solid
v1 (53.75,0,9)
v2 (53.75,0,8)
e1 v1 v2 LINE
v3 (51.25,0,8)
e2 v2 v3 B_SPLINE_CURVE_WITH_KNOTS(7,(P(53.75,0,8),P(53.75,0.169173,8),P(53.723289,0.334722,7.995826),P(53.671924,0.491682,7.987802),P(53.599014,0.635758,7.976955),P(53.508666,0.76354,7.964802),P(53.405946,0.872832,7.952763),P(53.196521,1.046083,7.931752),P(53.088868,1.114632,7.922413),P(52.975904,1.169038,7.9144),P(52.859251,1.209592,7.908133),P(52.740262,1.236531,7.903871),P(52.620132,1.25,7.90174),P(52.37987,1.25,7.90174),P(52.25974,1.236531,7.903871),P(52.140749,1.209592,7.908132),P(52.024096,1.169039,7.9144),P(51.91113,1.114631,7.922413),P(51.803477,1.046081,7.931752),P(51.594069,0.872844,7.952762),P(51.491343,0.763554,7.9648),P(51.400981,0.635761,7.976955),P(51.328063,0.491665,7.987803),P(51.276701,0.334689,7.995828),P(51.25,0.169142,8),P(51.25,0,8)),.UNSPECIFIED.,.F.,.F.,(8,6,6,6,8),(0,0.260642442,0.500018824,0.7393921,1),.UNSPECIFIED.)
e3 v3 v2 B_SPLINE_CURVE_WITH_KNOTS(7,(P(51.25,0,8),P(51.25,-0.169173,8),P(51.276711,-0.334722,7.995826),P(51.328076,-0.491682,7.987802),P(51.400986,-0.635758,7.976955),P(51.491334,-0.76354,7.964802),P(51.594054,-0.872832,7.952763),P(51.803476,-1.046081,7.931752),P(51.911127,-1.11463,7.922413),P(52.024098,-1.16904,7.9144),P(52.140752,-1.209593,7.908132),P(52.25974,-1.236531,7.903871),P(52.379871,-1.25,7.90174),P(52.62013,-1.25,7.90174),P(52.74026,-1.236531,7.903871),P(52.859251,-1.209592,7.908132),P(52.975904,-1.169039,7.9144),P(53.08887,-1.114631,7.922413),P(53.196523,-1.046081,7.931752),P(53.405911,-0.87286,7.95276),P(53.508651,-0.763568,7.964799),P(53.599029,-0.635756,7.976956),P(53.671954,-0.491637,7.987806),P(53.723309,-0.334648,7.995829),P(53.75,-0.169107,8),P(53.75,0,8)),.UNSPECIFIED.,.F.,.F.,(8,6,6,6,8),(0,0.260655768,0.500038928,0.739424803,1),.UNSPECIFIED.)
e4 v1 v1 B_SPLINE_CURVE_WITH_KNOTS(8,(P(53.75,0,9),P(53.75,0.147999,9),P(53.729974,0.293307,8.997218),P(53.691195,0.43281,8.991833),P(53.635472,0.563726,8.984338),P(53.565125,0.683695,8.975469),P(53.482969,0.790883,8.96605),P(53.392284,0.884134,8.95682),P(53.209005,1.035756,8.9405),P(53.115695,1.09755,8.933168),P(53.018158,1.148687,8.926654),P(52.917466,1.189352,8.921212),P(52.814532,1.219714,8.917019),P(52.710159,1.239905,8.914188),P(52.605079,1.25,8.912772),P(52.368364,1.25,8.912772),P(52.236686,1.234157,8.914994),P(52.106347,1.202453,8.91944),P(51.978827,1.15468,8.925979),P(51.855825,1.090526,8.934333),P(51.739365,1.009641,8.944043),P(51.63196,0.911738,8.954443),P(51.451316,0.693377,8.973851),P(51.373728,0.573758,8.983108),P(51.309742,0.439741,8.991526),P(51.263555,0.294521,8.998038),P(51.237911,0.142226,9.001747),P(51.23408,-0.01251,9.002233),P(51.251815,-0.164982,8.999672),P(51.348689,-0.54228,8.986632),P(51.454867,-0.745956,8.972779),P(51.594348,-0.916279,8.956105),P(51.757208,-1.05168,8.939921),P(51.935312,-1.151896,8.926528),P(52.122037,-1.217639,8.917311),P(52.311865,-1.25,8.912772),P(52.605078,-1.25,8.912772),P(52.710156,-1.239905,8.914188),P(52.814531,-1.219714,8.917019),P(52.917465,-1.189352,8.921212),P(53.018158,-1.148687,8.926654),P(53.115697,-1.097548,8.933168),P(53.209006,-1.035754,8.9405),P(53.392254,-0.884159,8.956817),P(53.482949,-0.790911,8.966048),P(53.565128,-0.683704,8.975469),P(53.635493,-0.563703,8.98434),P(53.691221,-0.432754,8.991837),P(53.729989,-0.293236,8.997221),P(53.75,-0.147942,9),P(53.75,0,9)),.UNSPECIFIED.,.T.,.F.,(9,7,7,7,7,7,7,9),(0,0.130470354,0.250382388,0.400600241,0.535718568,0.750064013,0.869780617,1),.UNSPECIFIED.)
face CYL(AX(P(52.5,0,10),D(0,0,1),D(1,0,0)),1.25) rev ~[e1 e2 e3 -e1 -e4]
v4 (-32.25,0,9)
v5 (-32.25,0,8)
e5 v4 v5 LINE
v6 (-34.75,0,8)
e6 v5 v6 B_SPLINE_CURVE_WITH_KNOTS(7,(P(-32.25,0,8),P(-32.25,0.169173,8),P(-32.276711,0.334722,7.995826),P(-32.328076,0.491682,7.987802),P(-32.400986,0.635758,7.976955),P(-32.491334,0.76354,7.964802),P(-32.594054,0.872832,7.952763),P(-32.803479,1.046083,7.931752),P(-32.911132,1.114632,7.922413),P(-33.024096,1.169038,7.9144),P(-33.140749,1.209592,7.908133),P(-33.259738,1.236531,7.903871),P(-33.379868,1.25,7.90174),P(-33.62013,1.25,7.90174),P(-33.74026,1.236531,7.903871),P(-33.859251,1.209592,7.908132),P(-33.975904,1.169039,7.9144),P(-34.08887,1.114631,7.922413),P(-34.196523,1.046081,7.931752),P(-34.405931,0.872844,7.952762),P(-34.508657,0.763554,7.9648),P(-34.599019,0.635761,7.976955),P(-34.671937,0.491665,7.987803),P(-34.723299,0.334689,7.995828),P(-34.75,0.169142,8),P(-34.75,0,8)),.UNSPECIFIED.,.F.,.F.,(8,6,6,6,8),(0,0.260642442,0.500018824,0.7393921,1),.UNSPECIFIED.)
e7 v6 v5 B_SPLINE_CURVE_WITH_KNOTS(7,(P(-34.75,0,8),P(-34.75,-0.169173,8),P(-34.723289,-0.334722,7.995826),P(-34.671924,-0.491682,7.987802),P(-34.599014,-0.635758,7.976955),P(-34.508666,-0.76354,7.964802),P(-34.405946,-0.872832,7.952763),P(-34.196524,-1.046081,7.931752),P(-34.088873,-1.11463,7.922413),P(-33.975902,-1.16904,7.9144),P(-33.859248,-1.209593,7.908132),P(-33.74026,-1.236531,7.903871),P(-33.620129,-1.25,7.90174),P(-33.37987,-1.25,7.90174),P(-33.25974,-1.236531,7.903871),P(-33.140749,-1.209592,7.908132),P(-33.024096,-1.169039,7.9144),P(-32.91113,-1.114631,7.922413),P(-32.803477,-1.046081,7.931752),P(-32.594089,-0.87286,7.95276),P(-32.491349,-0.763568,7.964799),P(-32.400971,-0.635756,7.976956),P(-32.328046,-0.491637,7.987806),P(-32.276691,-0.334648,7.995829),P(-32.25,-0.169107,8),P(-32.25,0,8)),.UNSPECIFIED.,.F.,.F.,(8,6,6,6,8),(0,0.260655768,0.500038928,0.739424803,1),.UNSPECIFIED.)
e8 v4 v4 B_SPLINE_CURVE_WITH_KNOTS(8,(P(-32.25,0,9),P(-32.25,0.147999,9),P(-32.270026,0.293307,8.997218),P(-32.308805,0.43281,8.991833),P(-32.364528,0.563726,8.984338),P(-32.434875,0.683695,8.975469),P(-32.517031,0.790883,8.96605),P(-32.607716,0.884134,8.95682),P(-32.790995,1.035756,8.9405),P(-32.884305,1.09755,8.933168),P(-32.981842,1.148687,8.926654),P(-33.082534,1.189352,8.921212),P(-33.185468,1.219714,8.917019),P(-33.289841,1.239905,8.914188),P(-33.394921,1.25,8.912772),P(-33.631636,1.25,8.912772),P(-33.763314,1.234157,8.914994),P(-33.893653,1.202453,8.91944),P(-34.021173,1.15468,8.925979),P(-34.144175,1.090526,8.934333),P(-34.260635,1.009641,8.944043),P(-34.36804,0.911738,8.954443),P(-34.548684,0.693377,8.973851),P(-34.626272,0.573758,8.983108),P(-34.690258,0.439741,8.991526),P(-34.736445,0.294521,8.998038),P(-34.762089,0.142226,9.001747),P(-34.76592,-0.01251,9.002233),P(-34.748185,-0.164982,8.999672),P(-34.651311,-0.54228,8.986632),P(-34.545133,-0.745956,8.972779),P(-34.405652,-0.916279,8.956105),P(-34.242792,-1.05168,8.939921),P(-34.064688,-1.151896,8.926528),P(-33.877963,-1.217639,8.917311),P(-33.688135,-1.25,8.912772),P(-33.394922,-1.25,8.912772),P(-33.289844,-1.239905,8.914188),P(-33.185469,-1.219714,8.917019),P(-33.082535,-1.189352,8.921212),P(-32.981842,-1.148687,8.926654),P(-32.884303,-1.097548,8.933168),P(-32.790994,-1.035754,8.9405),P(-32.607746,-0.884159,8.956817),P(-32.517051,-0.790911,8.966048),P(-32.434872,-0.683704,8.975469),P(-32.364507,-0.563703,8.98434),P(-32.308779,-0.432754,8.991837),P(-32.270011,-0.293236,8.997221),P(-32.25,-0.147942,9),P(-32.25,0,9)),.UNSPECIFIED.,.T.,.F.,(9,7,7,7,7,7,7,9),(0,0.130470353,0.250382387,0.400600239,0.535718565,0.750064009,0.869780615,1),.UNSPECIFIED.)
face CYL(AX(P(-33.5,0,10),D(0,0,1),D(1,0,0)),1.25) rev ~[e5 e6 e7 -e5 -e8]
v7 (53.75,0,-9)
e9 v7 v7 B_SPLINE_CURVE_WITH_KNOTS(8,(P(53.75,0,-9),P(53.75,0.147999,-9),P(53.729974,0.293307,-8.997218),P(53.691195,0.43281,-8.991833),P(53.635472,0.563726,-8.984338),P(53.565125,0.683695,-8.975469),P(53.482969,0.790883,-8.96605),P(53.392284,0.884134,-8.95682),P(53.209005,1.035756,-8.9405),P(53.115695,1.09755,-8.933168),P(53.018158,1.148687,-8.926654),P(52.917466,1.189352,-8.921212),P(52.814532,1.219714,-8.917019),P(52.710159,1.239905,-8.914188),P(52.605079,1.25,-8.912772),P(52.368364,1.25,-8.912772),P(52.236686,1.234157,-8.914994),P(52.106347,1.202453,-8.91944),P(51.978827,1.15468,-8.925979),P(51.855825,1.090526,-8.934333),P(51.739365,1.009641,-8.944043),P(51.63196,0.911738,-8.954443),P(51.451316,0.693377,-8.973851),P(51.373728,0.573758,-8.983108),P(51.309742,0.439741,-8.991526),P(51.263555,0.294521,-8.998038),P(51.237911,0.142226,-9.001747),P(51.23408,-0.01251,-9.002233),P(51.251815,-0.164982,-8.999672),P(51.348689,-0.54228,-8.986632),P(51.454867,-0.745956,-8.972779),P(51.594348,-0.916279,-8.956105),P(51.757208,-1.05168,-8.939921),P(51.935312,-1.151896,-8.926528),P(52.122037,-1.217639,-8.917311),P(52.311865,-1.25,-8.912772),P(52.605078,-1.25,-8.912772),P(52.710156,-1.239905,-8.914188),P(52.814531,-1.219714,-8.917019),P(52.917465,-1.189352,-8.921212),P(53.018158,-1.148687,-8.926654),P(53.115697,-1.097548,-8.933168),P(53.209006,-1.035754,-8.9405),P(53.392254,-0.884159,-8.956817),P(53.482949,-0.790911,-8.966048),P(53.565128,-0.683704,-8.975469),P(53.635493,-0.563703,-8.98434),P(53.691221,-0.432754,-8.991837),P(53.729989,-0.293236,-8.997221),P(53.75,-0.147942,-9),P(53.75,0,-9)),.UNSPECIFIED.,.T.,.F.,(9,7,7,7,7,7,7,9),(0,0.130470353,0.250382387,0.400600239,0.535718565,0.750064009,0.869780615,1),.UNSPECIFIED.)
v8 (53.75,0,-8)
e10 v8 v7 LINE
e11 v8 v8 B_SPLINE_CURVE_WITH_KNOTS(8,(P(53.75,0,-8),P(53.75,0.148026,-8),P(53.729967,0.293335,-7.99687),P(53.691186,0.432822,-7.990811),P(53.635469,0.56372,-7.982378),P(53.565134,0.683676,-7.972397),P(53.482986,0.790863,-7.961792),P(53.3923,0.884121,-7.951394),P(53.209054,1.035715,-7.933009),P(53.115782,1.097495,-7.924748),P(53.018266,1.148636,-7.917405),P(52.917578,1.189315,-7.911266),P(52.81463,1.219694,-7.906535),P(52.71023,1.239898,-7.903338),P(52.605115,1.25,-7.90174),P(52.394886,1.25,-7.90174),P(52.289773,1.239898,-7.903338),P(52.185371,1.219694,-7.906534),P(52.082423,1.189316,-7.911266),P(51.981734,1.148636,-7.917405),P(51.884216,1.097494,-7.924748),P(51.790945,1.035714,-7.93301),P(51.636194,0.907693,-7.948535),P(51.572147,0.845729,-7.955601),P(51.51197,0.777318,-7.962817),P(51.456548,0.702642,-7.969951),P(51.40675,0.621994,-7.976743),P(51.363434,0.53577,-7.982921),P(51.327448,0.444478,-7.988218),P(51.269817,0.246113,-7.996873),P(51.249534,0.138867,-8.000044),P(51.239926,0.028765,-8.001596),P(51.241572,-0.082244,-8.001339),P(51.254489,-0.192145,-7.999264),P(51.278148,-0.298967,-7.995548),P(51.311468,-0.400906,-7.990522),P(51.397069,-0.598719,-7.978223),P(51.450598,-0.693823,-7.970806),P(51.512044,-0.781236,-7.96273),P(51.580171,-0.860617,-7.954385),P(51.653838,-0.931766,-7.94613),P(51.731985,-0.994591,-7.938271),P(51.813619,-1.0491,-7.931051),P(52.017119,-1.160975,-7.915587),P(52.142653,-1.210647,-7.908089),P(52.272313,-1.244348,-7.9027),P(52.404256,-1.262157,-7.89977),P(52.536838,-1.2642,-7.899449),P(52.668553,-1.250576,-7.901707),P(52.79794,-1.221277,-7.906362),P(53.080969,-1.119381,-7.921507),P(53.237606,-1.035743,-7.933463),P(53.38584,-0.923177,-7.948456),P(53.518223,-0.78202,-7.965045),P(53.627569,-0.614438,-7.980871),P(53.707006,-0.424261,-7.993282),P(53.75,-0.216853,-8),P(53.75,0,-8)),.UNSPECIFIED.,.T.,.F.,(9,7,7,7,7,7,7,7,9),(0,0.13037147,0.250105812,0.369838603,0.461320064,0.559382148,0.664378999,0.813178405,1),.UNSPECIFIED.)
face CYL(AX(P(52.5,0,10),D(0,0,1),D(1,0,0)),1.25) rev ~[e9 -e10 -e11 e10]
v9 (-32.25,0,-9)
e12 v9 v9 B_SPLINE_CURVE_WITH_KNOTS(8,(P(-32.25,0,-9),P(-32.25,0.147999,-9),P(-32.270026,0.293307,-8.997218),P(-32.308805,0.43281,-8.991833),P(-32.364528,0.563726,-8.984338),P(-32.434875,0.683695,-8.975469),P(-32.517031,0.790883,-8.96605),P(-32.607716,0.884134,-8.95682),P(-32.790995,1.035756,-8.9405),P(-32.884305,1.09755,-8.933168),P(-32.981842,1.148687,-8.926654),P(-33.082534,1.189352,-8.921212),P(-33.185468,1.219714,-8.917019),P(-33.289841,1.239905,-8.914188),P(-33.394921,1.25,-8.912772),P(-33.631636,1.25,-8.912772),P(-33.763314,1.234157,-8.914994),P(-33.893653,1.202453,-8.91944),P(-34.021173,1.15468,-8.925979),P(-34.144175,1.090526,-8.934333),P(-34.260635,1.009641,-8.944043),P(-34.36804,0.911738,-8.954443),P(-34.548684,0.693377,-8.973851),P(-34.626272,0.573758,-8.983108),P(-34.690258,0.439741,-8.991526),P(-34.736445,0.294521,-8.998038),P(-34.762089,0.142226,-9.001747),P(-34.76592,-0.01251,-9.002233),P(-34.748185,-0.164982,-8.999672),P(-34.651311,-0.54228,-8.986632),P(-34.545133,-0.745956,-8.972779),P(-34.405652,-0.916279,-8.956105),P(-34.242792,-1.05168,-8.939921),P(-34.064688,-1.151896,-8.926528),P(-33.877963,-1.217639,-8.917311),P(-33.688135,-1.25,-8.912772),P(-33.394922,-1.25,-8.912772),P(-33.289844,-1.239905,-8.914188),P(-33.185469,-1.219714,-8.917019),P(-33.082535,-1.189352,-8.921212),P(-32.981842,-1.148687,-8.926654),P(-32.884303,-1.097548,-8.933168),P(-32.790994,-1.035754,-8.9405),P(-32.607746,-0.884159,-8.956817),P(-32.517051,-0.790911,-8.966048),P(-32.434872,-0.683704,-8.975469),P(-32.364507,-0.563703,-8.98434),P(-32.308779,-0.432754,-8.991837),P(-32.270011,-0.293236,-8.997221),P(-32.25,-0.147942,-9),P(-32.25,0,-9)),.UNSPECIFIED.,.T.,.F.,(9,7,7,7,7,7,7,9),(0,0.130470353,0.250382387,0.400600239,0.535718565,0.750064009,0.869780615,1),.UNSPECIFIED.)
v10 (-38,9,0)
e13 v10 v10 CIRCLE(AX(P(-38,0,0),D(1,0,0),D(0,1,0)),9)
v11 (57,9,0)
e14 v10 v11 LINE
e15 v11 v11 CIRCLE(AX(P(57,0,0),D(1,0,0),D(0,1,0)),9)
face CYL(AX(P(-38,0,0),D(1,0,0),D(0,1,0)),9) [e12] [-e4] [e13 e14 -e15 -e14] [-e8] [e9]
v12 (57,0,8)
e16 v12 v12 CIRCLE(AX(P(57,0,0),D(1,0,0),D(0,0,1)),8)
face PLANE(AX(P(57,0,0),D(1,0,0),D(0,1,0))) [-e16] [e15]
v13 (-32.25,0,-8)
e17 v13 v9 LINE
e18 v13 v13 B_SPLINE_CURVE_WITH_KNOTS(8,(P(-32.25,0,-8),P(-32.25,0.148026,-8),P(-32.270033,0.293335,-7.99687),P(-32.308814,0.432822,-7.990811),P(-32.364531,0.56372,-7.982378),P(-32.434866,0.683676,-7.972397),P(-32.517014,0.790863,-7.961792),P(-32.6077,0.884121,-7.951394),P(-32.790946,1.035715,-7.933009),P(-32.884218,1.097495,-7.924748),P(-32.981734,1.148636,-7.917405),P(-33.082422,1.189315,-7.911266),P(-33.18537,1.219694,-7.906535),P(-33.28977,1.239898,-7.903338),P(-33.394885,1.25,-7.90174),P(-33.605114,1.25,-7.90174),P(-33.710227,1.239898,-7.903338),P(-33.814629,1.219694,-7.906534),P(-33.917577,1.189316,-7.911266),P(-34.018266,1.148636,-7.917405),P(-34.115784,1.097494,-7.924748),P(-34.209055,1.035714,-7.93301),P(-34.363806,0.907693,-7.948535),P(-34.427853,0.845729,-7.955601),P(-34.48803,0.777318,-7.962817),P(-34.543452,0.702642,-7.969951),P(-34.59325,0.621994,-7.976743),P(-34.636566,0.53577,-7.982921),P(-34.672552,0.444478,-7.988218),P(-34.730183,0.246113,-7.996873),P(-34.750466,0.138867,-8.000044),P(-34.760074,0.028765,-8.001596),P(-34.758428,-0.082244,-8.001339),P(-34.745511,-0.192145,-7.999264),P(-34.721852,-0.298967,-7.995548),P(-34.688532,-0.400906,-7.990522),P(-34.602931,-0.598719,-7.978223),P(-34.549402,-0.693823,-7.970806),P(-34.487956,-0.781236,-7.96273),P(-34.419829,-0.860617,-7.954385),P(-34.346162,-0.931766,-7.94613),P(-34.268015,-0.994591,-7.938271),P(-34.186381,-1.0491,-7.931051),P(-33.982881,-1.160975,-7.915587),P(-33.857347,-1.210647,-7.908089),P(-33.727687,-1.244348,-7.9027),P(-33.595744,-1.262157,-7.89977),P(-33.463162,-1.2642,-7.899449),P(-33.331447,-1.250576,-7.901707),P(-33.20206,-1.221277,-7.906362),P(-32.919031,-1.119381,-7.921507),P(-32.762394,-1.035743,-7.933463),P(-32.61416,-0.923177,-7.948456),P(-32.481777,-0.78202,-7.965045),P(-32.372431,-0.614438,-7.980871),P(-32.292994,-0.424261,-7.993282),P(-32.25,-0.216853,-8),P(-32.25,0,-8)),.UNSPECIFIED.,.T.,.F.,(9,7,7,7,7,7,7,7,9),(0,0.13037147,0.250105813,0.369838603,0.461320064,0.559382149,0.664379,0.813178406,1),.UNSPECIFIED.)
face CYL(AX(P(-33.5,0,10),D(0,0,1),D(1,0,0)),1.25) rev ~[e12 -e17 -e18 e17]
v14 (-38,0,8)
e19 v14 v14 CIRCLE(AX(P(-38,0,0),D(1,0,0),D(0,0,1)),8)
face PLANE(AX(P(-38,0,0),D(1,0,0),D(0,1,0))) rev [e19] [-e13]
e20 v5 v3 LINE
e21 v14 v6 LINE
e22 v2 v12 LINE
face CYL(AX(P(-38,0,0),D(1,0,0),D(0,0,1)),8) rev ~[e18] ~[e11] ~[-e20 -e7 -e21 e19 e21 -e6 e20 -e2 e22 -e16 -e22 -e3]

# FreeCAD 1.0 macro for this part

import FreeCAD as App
import Part
import Sketcher
from FreeCAD import Vector

doc = App.newDocument("Part")
body = doc.addObject("PartDesign::Body", "Body")

sketch1 = doc.addObject("Sketcher::SketchObject", "Sketch")
body.addObject(sketch1)
sketch1.AttachmentSupport = (doc.XY_Plane, [""])
sketch1.MapMode = "FlatFace"
sketch1.addGeometry(Part.LineSegment(Vector(57, 9, 0), Vector(-38, 9, 0)), False)
sketch1.addGeometry(Part.LineSegment(Vector(-38, 9, 0), Vector(-38, 0, 0)), False)
sketch1.addGeometry(Part.LineSegment(Vector(-38, 0, 0), Vector(57, 0, 0)), False)
sketch1.addGeometry(Part.LineSegment(Vector(57, 0, 0), Vector(57, 9, 0)), False)
sketch1.addConstraint(Sketcher.Constraint("Coincident", 0, 2, 1, 1))
sketch1.addConstraint(Sketcher.Constraint("Coincident", 1, 2, 2, 1))
sketch1.addConstraint(Sketcher.Constraint("Coincident", 2, 2, 3, 1))
sketch1.addConstraint(Sketcher.Constraint("Coincident", 3, 2, 0, 1))
sketch1.addConstraint(Sketcher.Constraint("Horizontal", 0))
sketch1.addConstraint(Sketcher.Constraint("Vertical", 1))
sketch1.addConstraint(Sketcher.Constraint("Horizontal", 2))
sketch1.addConstraint(Sketcher.Constraint("Vertical", 3))
sketch1.addConstraint(Sketcher.Constraint("PointOnObject", 1, 2, -1))
sketch1.addConstraint(Sketcher.Constraint("DistanceX", 0, 2, 0, 1, 95.0))
sketch1.addConstraint(Sketcher.Constraint("DistanceY", 1, 2, 1, 1, 9.0))
sketch1.addConstraint(Sketcher.Constraint("DistanceX", 0, 2, -1, 1, 38.0))
revolution = doc.addObject("PartDesign::Revolution", "Revolution")
body.addObject(revolution)
revolution.Profile = sketch1
revolution.ReferenceAxis = (sketch1, ["H_Axis"])
revolution.Angle = 360

sketch2 = doc.addObject("Sketcher::SketchObject", "Sketch001")
body.addObject(sketch2)
sketch2.AttachmentSupport = (doc.YZ_Plane, [""])
sketch2.MapMode = "FlatFace"
sketch2.AttachmentOffset = App.Placement(Vector(0, 0, -38), App.Rotation())
sketch2.addGeometry(Part.Circle(Vector(0, 0, 0), Vector(0, 0, 1), 8), False)
sketch2.addConstraint(Sketcher.Constraint("Coincident", 0, 3, -1, 1))
sketch2.addConstraint(Sketcher.Constraint("Diameter", 0, 16.0))
doc.recompute()
hole = doc.addObject("PartDesign::Hole", "Hole")
body.addObject(hole)
hole.Profile = sketch2
hole.ThreadType = "None"
hole.Diameter = 16
hole.DepthType = "ThroughAll"
hole.Reversed = True

sketch3 = doc.addObject("Sketcher::SketchObject", "Sketch002")
body.addObject(sketch3)
sketch3.AttachmentSupport = (doc.XY_Plane, [""])
sketch3.MapMode = "FlatFace"
sketch3.AttachmentOffset = App.Placement(Vector(0, 0, 10), App.Rotation())
sketch3.addGeometry(Part.Circle(Vector(-33.5, 0, 0), Vector(0, 0, 1), 1.2), False)
sketch3.addGeometry(Part.Circle(Vector(52.5, 0, 0), Vector(0, 0, 1), 1.2), False)
sketch3.addConstraint(Sketcher.Constraint("Equal", 0, 1))
sketch3.addConstraint(Sketcher.Constraint("PointOnObject", 0, 3, -1))
sketch3.addConstraint(Sketcher.Constraint("PointOnObject", 1, 3, -1))
sketch3.addConstraint(Sketcher.Constraint("Diameter", 0, 2.5))
sketch3.addConstraint(Sketcher.Constraint("DistanceX", 0, 3, 1, 3, 86.0))
sketch3.addConstraint(Sketcher.Constraint("DistanceX", 0, 3, -1, 1, 33.5))
pocket1 = doc.addObject("PartDesign::Pocket", "Pocket")
body.addObject(pocket1)
pocket1.Profile = sketch3
pocket1.Type = "ThroughAll"

doc.recompute()
